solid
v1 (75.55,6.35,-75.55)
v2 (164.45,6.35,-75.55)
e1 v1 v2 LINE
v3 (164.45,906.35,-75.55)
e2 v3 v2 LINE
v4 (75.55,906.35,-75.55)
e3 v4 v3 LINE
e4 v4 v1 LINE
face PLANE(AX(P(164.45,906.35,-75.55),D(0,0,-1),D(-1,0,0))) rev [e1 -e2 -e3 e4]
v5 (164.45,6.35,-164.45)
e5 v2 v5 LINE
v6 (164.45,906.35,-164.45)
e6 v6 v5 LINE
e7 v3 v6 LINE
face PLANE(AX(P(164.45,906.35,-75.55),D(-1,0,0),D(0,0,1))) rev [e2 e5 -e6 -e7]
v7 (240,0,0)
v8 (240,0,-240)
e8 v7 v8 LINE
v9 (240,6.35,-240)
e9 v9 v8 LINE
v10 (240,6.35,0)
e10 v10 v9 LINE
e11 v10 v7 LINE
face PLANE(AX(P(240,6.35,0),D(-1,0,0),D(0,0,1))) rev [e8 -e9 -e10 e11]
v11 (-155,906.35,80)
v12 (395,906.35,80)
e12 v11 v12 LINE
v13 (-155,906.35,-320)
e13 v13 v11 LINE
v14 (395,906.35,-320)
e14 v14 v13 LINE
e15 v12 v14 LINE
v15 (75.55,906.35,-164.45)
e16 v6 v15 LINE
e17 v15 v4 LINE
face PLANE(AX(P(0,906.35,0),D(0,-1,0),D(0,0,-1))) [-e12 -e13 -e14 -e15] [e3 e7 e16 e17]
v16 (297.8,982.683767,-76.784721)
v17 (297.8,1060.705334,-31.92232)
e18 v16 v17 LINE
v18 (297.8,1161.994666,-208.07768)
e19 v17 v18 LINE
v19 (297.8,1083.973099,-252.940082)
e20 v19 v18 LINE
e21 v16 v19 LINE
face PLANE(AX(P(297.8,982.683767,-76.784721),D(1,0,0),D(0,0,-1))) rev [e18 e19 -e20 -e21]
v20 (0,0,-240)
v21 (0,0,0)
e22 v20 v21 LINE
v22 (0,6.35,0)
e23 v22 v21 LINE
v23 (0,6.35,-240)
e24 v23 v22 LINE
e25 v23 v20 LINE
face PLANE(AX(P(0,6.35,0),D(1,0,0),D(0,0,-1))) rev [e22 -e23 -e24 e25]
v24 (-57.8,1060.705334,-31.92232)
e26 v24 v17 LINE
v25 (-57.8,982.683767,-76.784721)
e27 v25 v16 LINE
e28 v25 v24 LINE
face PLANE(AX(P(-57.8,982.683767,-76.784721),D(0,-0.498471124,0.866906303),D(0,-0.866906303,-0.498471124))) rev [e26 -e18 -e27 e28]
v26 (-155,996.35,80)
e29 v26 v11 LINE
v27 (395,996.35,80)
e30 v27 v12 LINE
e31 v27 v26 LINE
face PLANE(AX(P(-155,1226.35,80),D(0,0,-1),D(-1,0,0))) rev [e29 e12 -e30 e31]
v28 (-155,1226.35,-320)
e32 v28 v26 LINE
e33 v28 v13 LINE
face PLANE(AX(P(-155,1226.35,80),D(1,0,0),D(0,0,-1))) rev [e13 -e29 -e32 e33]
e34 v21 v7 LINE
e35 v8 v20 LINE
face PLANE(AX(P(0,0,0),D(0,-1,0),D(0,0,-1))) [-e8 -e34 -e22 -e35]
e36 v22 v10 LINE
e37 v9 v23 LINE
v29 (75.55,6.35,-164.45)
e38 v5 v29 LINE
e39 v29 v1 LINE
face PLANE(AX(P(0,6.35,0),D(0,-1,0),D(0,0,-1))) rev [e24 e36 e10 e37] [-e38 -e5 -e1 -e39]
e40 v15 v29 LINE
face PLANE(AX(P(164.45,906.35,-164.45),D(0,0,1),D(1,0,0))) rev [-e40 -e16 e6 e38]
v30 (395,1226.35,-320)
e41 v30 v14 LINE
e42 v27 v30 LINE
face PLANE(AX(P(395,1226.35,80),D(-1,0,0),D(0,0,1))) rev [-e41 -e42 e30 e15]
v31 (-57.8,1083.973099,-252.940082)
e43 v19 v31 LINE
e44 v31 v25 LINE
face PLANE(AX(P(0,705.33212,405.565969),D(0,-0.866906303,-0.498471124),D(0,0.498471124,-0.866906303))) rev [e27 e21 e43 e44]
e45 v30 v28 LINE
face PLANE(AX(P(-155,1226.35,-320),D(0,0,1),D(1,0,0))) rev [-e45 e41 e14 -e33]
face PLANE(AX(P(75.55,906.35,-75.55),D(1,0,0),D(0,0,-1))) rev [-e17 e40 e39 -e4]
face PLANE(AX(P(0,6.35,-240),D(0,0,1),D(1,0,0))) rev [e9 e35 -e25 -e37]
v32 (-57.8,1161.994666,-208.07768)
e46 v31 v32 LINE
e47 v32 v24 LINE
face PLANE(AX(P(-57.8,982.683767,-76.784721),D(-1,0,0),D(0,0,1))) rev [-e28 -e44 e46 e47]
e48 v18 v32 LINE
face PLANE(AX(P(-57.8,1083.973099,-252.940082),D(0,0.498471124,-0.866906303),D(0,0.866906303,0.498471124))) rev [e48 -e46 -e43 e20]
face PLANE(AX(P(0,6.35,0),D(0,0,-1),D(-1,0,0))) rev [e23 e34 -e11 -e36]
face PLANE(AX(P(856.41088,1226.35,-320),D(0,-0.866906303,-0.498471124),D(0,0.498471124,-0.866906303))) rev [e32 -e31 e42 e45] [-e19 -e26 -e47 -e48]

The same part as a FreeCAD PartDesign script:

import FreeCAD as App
import Part
import Sketcher

V = App.Vector
Q = App.Units.Quantity


def add_polygon(sketch, points):
    """Adds a closed chain of lines whose ends are joined by coincident constraints."""
    first, n = sketch.GeometryCount, len(points)
    for a, b in zip(points, points[1:] + points[:1]):
        sketch.addGeometry(Part.LineSegment(App.Vector(*a, 0), App.Vector(*b, 0)), False)
    for i in range(n):
        sketch.addConstraint(Sketcher.Constraint("Coincident", first + i, 2, first + (i + 1) % n, 1))

doc = App.newDocument("Part")
body = doc.addObject("PartDesign::Body", "Body")

# Sketch on XZ plane
sketch1 = body.newObject("Sketcher::SketchObject", "Sketch")
sketch1.AttachmentSupport = (doc.getObject("XZ_Plane"), [""])
sketch1.MapMode = "FlatFace"
add_polygon(sketch1, [(0, -240), (0, 0), (240, 0), (240, -240)])  # lines 0-3
sketch1.addConstraint(Sketcher.Constraint("Vertical", 0))
sketch1.addConstraint(Sketcher.Constraint("Horizontal", 1))
sketch1.addConstraint(Sketcher.Constraint("Vertical", 2))
sketch1.addConstraint(Sketcher.Constraint("Horizontal", 3))
sketch1.addConstraint(Sketcher.Constraint("Coincident", 0, 2, -1, 1))
sketch1.addConstraint(Sketcher.Constraint("Equal", 3, 0))
sketch1.addConstraint(Sketcher.Constraint("DistanceX", 1, 1, 1, 2, Q("240 mm")))
pad1 = body.newObject("PartDesign::Pad", "Pad")
pad1.Profile = sketch1
pad1.Length = 6.35
pad1.Reversed = True

# Sketch on XZ plane
sketch2 = body.newObject("Sketcher::SketchObject", "Sketch001")
sketch2.AttachmentSupport = (doc.getObject("XZ_Plane"), [""])
sketch2.MapMode = "FlatFace"
sketch2.AttachmentOffset = App.Placement(V(0, 0, -6.35), App.Rotation())
add_polygon(sketch2, [(76, -164), (76, -76), (164, -76), (164, -164)])  # lines 0-3
sketch2.addConstraint(Sketcher.Constraint("Vertical", 0))
sketch2.addConstraint(Sketcher.Constraint("Horizontal", 1))
sketch2.addConstraint(Sketcher.Constraint("Vertical", 2))
sketch2.addConstraint(Sketcher.Constraint("Horizontal", 3))
sketch2.addConstraint(Sketcher.Constraint("Equal", 3, 0))
sketch2.addConstraint(Sketcher.Constraint("DistanceX", 1, 1, 1, 2, Q("88.9 mm")))
sketch2.addConstraint(Sketcher.Constraint("DistanceX", -1, 1, 0, 2, Q("75.55 mm")))
sketch2.addConstraint(Sketcher.Constraint("DistanceY", 0, 2, -1, 1, Q("75.55 mm")))
pad2 = body.newObject("PartDesign::Pad", "Pad001")
pad2.Profile = sketch2
pad2.Length = 900
pad2.Reversed = True

# Sketch on XZ plane
sketch3 = body.newObject("Sketcher::SketchObject", "Sketch002")
sketch3.AttachmentSupport = (doc.getObject("XZ_Plane"), [""])
sketch3.MapMode = "FlatFace"
sketch3.AttachmentOffset = App.Placement(V(0, 0, -906.35), App.Rotation())
add_polygon(sketch3, [(-155, -320), (-155, 80), (395, 80), (395, -320)])  # lines 0-3
sketch3.addConstraint(Sketcher.Constraint("Vertical", 0))
sketch3.addConstraint(Sketcher.Constraint("Horizontal", 1))
sketch3.addConstraint(Sketcher.Constraint("Vertical", 2))
sketch3.addConstraint(Sketcher.Constraint("Horizontal", 3))
sketch3.addConstraint(Sketcher.Constraint("DistanceX", 1, 1, 1, 2, Q("550 mm")))
sketch3.addConstraint(Sketcher.Constraint("DistanceY", 0, 1, 0, 2, Q("400 mm")))
sketch3.addConstraint(Sketcher.Constraint("DistanceX", 0, 2, -1, 1, Q("155 mm")))
sketch3.addConstraint(Sketcher.Constraint("DistanceY", -1, 1, 0, 2, Q("80 mm")))
pad3 = body.newObject("PartDesign::Pad", "Pad002")
pad3.Profile = sketch3
pad3.Length = 320
pad3.Reversed = True

# Sketch on YZ plane
sketch4 = body.newObject("Sketcher::SketchObject", "Sketch003")
sketch4.AttachmentSupport = (doc.getObject("YZ_Plane"), [""])
sketch4.MapMode = "FlatFace"
sketch4.AttachmentOffset = App.Placement(V(0, 0, -155), App.Rotation())
add_polygon(sketch4, [(1226, -320), (996, 80), (1226, 80)])  # lines 0-2
sketch4.addConstraint(Sketcher.Constraint("Horizontal", 1))
sketch4.addConstraint(Sketcher.Constraint("Vertical", 2))
sketch4.addConstraint(Sketcher.Constraint("DistanceX", 1, 1, 1, 2, Q("230 mm")))
sketch4.addConstraint(Sketcher.Constraint("DistanceY", 2, 2, 2, 1, Q("400 mm")))
sketch4.addConstraint(Sketcher.Constraint("DistanceY", -1, 1, 0, 2, Q("80 mm")))
sketch4.addConstraint(Sketcher.Constraint("DistanceX", -1, 1, 0, 2, Q("996.35 mm")))
pocket1 = body.newObject("PartDesign::Pocket", "Pocket")
pocket1.Profile = sketch4
pocket1.Length = 550
pocket1.Reversed = True

# Sketch on an angled plane
sketch5 = body.newObject("Sketcher::SketchObject", "Sketch004")
sketch5.Placement = App.Placement(V(0, 783.353687, 450.42837), App.Rotation(V(1, 0, 0), V(0, 0.498471124, -0.866906303), V(0, 0.866906303, 0.498471124), "ZXY"))
add_polygon(sketch5, [(-58, 760), (-58, 556), (298, 556), (298, 760)])  # lines 0-3
sketch5.addConstraint(Sketcher.Constraint("Vertical", 0))
sketch5.addConstraint(Sketcher.Constraint("Horizontal", 1))
sketch5.addConstraint(Sketcher.Constraint("Vertical", 2))
sketch5.addConstraint(Sketcher.Constraint("Horizontal", 3))
sketch5.addConstraint(Sketcher.Constraint("DistanceX", 1, 1, 1, 2, Q("355.6 mm")))
sketch5.addConstraint(Sketcher.Constraint("DistanceY", 0, 2, 0, 1, Q("203.2 mm")))
sketch5.addConstraint(Sketcher.Constraint("DistanceX", 0, 2, -1, 1, Q("57.8 mm")))
sketch5.addConstraint(Sketcher.Constraint("DistanceY", -1, 1, 0, 2, Q("556.40464 mm")))
pocket2 = body.newObject("PartDesign::Pocket", "Pocket001")
pocket2.Profile = sketch5
pocket2.Length = 90

doc.recompute()
